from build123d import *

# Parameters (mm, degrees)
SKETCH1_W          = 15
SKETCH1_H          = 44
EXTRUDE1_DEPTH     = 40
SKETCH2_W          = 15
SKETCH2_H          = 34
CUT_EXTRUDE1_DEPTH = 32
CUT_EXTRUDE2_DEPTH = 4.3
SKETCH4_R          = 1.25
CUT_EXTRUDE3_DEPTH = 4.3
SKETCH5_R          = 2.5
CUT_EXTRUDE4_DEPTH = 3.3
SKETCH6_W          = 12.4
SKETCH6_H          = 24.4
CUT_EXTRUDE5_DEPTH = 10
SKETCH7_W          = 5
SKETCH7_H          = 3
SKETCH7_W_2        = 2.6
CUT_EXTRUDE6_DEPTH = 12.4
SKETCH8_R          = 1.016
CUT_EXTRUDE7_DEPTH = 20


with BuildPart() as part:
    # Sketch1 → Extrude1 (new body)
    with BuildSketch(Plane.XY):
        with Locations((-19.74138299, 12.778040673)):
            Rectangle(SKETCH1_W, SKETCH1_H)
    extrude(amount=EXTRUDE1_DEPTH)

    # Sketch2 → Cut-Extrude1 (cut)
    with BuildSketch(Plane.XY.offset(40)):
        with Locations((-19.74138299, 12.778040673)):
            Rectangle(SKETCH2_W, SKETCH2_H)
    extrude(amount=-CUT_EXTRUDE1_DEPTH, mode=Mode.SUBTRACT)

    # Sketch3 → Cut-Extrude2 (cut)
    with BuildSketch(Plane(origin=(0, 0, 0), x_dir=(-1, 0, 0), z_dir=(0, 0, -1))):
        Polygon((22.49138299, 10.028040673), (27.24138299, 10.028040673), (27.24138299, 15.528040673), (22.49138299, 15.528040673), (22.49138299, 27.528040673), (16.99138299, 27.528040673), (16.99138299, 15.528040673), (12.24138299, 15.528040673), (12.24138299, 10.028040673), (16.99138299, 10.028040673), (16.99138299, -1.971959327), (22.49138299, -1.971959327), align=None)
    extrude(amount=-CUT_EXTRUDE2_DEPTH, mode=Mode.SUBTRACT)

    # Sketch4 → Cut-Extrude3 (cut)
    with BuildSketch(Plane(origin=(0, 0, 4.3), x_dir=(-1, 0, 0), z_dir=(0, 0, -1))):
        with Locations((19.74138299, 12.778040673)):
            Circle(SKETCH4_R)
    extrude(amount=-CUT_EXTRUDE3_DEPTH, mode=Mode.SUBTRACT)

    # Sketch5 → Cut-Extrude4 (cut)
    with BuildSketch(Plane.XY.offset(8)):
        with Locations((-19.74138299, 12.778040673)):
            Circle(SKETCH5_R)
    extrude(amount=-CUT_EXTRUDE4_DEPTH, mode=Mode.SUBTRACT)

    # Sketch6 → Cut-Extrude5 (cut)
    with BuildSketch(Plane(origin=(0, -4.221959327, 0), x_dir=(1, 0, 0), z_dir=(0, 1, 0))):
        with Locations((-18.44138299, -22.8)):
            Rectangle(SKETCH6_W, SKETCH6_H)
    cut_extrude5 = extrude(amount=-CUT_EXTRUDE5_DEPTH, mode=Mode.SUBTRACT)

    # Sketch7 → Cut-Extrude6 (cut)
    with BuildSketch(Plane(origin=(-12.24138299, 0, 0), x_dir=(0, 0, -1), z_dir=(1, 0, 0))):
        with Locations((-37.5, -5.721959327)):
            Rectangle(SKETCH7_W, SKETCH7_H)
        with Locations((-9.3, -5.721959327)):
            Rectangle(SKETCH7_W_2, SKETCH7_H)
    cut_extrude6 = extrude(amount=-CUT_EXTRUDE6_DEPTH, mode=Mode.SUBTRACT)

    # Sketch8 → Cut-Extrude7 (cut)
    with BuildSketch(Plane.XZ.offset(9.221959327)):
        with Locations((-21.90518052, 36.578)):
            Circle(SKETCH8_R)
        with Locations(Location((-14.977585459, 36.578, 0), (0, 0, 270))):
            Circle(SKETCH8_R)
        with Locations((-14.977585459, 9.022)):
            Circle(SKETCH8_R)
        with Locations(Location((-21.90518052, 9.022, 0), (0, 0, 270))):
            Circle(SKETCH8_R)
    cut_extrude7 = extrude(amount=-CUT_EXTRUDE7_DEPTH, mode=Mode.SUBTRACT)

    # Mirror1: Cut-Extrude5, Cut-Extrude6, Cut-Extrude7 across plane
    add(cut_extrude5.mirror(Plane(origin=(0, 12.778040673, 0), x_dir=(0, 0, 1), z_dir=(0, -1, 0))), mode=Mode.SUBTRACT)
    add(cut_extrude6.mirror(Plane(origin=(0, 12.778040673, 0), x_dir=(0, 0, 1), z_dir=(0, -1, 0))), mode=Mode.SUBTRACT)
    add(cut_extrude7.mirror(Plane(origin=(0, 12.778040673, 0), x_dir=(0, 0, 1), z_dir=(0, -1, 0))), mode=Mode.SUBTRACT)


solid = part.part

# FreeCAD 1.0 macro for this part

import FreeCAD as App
import Part
import Sketcher

doc = App.newDocument("Part")
body = doc.addObject("PartDesign::Body", "Body")

# Sketch on XY plane
sketch1 = doc.addObject("Sketcher::SketchObject", "Sketch")
body.addObject(sketch1)
sketch1.AttachmentSupport = (doc.XY_Plane, [""])
sketch1.MapMode = "FlatFace"
sketch1.addGeometry(Part.LineSegment(App.Vector(-27, 35, 0), App.Vector(-27, -9, 0)), False)
sketch1.addGeometry(Part.LineSegment(App.Vector(-27, -9, 0), App.Vector(-12, -9, 0)), False)
sketch1.addGeometry(Part.LineSegment(App.Vector(-12, -9, 0), App.Vector(-12, 35, 0)), False)
sketch1.addGeometry(Part.LineSegment(App.Vector(-12, 35, 0), App.Vector(-27, 35, 0)), False)
sketch1.addConstraint(Sketcher.Constraint("Coincident", 0, 2, 1, 1))
sketch1.addConstraint(Sketcher.Constraint("Coincident", 1, 2, 2, 1))
sketch1.addConstraint(Sketcher.Constraint("Coincident", 2, 2, 3, 1))
sketch1.addConstraint(Sketcher.Constraint("Coincident", 3, 2, 0, 1))
sketch1.addConstraint(Sketcher.Constraint("Vertical", 0))
sketch1.addConstraint(Sketcher.Constraint("Horizontal", 1))
sketch1.addConstraint(Sketcher.Constraint("Vertical", 2))
sketch1.addConstraint(Sketcher.Constraint("Horizontal", 3))
sketch1.addConstraint(Sketcher.Constraint("DistanceX", 1, 1, 1, 2, 15.0))
sketch1.addConstraint(Sketcher.Constraint("DistanceY", 0, 2, 0, 1, 44.0))
sketch1.addConstraint(Sketcher.Constraint("DistanceY", 0, 2, -1, 1, 9.221959))
sketch1.addConstraint(Sketcher.Constraint("DistanceX", 0, 2, -1, 1, 27.241383))
pad1 = doc.addObject("PartDesign::Pad", "Pad")
body.addObject(pad1)
pad1.Profile = sketch1
pad1.Length = 40

# Sketch on XY plane
sketch2 = doc.addObject("Sketcher::SketchObject", "Sketch001")
body.addObject(sketch2)
sketch2.AttachmentSupport = (doc.XY_Plane, [""])
sketch2.MapMode = "FlatFace"
sketch2.AttachmentOffset = App.Placement(App.Vector(0, 0, 40), App.Rotation())
sketch2.addGeometry(Part.LineSegment(App.Vector(-27, 30, 0), App.Vector(-27, -4, 0)), False)
sketch2.addGeometry(Part.LineSegment(App.Vector(-27, -4, 0), App.Vector(-12, -4, 0)), False)
sketch2.addGeometry(Part.LineSegment(App.Vector(-12, -4, 0), App.Vector(-12, 30, 0)), False)
sketch2.addGeometry(Part.LineSegment(App.Vector(-12, 30, 0), App.Vector(-27, 30, 0)), False)
sketch2.addConstraint(Sketcher.Constraint("Coincident", 0, 2, 1, 1))
sketch2.addConstraint(Sketcher.Constraint("Coincident", 1, 2, 2, 1))
sketch2.addConstraint(Sketcher.Constraint("Coincident", 2, 2, 3, 1))
sketch2.addConstraint(Sketcher.Constraint("Coincident", 3, 2, 0, 1))
sketch2.addConstraint(Sketcher.Constraint("Vertical", 0))
sketch2.addConstraint(Sketcher.Constraint("Horizontal", 1))
sketch2.addConstraint(Sketcher.Constraint("Vertical", 2))
sketch2.addConstraint(Sketcher.Constraint("Horizontal", 3))
sketch2.addConstraint(Sketcher.Constraint("DistanceX", 1, 1, 1, 2, 15.0))
sketch2.addConstraint(Sketcher.Constraint("DistanceY", 0, 2, 0, 1, 34.0))
sketch2.addConstraint(Sketcher.Constraint("DistanceY", 0, 2, -1, 1, 4.221959))
sketch2.addConstraint(Sketcher.Constraint("DistanceX", 0, 2, -1, 1, 27.241383))
pocket1 = doc.addObject("PartDesign::Pocket", "Pocket")
body.addObject(pocket1)
pocket1.Profile = sketch2
pocket1.Length = 32

# Sketch on XY plane
sketch3 = doc.addObject("Sketcher::SketchObject", "Sketch002")
body.addObject(sketch3)
sketch3.AttachmentSupport = (doc.XY_Plane, [""])
sketch3.MapMode = "FlatFace"
sketch3.addGeometry(Part.LineSegment(App.Vector(-22.5, 10, 0), App.Vector(-27.2, 10, 0)), False)
sketch3.addGeometry(Part.LineSegment(App.Vector(-27.2, 10, 0), App.Vector(-27.2, 15.5, 0)), False)
sketch3.addGeometry(Part.LineSegment(App.Vector(-27.2, 15.5, 0), App.Vector(-22.5, 15.5, 0)), False)
sketch3.addGeometry(Part.LineSegment(App.Vector(-22.5, 15.5, 0), App.Vector(-22.5, 27.5, 0)), False)
sketch3.addGeometry(Part.LineSegment(App.Vector(-22.5, 27.5, 0), App.Vector(-17, 27.5, 0)), False)
sketch3.addGeometry(Part.LineSegment(App.Vector(-17, 27.5, 0), App.Vector(-17, 15.5, 0)), False)
sketch3.addGeometry(Part.LineSegment(App.Vector(-17, 15.5, 0), App.Vector(-12.2, 15.5, 0)), False)
sketch3.addGeometry(Part.LineSegment(App.Vector(-12.2, 15.5, 0), App.Vector(-12.2, 10, 0)), False)
sketch3.addGeometry(Part.LineSegment(App.Vector(-12.2, 10, 0), App.Vector(-17, 10, 0)), False)
sketch3.addGeometry(Part.LineSegment(App.Vector(-17, 10, 0), App.Vector(-17, -2, 0)), False)
sketch3.addGeometry(Part.LineSegment(App.Vector(-17, -2, 0), App.Vector(-22.5, -2, 0)), False)
sketch3.addGeometry(Part.LineSegment(App.Vector(-22.5, -2, 0), App.Vector(-22.5, 10, 0)), False)
sketch3.addConstraint(Sketcher.Constraint("Coincident", 0, 2, 1, 1))
sketch3.addConstraint(Sketcher.Constraint("Coincident", 1, 2, 2, 1))
sketch3.addConstraint(Sketcher.Constraint("Coincident", 2, 2, 3, 1))
sketch3.addConstraint(Sketcher.Constraint("Coincident", 3, 2, 4, 1))
sketch3.addConstraint(Sketcher.Constraint("Coincident", 4, 2, 5, 1))
sketch3.addConstraint(Sketcher.Constraint("Coincident", 5, 2, 6, 1))
sketch3.addConstraint(Sketcher.Constraint("Coincident", 6, 2, 7, 1))
sketch3.addConstraint(Sketcher.Constraint("Coincident", 7, 2, 8, 1))
sketch3.addConstraint(Sketcher.Constraint("Coincident", 8, 2, 9, 1))
sketch3.addConstraint(Sketcher.Constraint("Coincident", 9, 2, 10, 1))
sketch3.addConstraint(Sketcher.Constraint("Coincident", 10, 2, 11, 1))
sketch3.addConstraint(Sketcher.Constraint("Coincident", 11, 2, 0, 1))
sketch3.addConstraint(Sketcher.Constraint("Horizontal", 0))
sketch3.addConstraint(Sketcher.Constraint("Vertical", 1))
sketch3.addConstraint(Sketcher.Constraint("Horizontal", 2))
sketch3.addConstraint(Sketcher.Constraint("Vertical", 3))
sketch3.addConstraint(Sketcher.Constraint("Horizontal", 4))
sketch3.addConstraint(Sketcher.Constraint("Vertical", 5))
sketch3.addConstraint(Sketcher.Constraint("Horizontal", 6))
sketch3.addConstraint(Sketcher.Constraint("Vertical", 7))
sketch3.addConstraint(Sketcher.Constraint("Horizontal", 8))
sketch3.addConstraint(Sketcher.Constraint("Vertical", 9))
sketch3.addConstraint(Sketcher.Constraint("Horizontal", 10))
sketch3.addConstraint(Sketcher.Constraint("Vertical", 11))
sketch3.addConstraint(Sketcher.Constraint("Horizontal", 2, 2, 5, 2))
sketch3.addConstraint(Sketcher.Constraint("Horizontal", 0, 2, 7, 2))
sketch3.addConstraint(Sketcher.Constraint("Vertical", 5, 2, 8, 2))
sketch3.addConstraint(Sketcher.Constraint("Vertical", 3, 2, 10, 2))
sketch3.addConstraint(Sketcher.Constraint("Equal", 2, 6))
sketch3.addConstraint(Sketcher.Constraint("Equal", 10, 1))
sketch3.addConstraint(Sketcher.Constraint("Equal", 5, 9))
sketch3.addConstraint(Sketcher.Constraint("DistanceY", 3, 1, 3, 2, 12.0))
sketch3.addConstraint(Sketcher.Constraint("DistanceX", 4, 1, 4, 2, 5.5))
sketch3.addConstraint(Sketcher.Constraint("DistanceX", 1, 2, 6, 2, 15.0))
sketch3.addConstraint(Sketcher.Constraint("DistanceY", -1, 1, 0, 2, 10.028041))
sketch3.addConstraint(Sketcher.Constraint("DistanceX", 0, 2, -1, 1, 27.241383))
pocket2 = doc.addObject("PartDesign::Pocket", "Pocket001")
body.addObject(pocket2)
pocket2.Profile = sketch3
pocket2.Length = 4.3
pocket2.Reversed = True

# Sketch on XY plane
sketch4 = doc.addObject("Sketcher::SketchObject", "Sketch003")
body.addObject(sketch4)
sketch4.AttachmentSupport = (doc.XY_Plane, [""])
sketch4.MapMode = "FlatFace"
sketch4.AttachmentOffset = App.Placement(App.Vector(0, 0, 4.3), App.Rotation())
sketch4.addGeometry(Part.Circle(App.Vector(-19.7, 12.8, 0), App.Vector(0, 0, 1), 1.2), False)
sketch4.addConstraint(Sketcher.Constraint("Diameter", 0, 2.5))
sketch4.addConstraint(Sketcher.Constraint("DistanceY", -1, 1, 0, 3, 12.778041))
sketch4.addConstraint(Sketcher.Constraint("DistanceX", 0, 3, -1, 1, 19.741383))
pocket3 = doc.addObject("PartDesign::Pocket", "Pocket002")
body.addObject(pocket3)
pocket3.Profile = sketch4
pocket3.Length = 4.3
pocket3.Reversed = True

# Sketch on XY plane
sketch5 = doc.addObject("Sketcher::SketchObject", "Sketch004")
body.addObject(sketch5)
sketch5.AttachmentSupport = (doc.XY_Plane, [""])
sketch5.MapMode = "FlatFace"
sketch5.AttachmentOffset = App.Placement(App.Vector(0, 0, 8), App.Rotation())
sketch5.addGeometry(Part.Circle(App.Vector(-19.7, 12.8, 0), App.Vector(0, 0, 1), 2.5), False)
sketch5.addConstraint(Sketcher.Constraint("Diameter", 0, 5.0))
sketch5.addConstraint(Sketcher.Constraint("DistanceY", -1, 1, 0, 3, 12.778041))
sketch5.addConstraint(Sketcher.Constraint("DistanceX", 0, 3, -1, 1, 19.741383))
pocket4 = doc.addObject("PartDesign::Pocket", "Pocket003")
body.addObject(pocket4)
pocket4.Profile = sketch5
pocket4.Length = 3.3

# Sketch on XZ plane
sketch6 = doc.addObject("Sketcher::SketchObject", "Sketch005")
body.addObject(sketch6)
sketch6.AttachmentSupport = (doc.XZ_Plane, [""])
sketch6.MapMode = "FlatFace"
sketch6.AttachmentOffset = App.Placement(App.Vector(0, 0, 4.221959), App.Rotation())
sketch6.addGeometry(Part.LineSegment(App.Vector(-25, 11, 0), App.Vector(-25, 35, 0)), False)
sketch6.addGeometry(Part.LineSegment(App.Vector(-25, 35, 0), App.Vector(-12, 35, 0)), False)
sketch6.addGeometry(Part.LineSegment(App.Vector(-12, 35, 0), App.Vector(-12, 11, 0)), False)
sketch6.addGeometry(Part.LineSegment(App.Vector(-12, 11, 0), App.Vector(-25, 11, 0)), False)
sketch6.addConstraint(Sketcher.Constraint("Coincident", 0, 2, 1, 1))
sketch6.addConstraint(Sketcher.Constraint("Coincident", 1, 2, 2, 1))
sketch6.addConstraint(Sketcher.Constraint("Coincident", 2, 2, 3, 1))
sketch6.addConstraint(Sketcher.Constraint("Coincident", 3, 2, 0, 1))
sketch6.addConstraint(Sketcher.Constraint("Vertical", 0))
sketch6.addConstraint(Sketcher.Constraint("Horizontal", 1))
sketch6.addConstraint(Sketcher.Constraint("Vertical", 2))
sketch6.addConstraint(Sketcher.Constraint("Horizontal", 3))
sketch6.addConstraint(Sketcher.Constraint("DistanceX", 1, 1, 1, 2, 12.4))
sketch6.addConstraint(Sketcher.Constraint("DistanceY", 0, 1, 0, 2, 24.4))
sketch6.addConstraint(Sketcher.Constraint("DistanceY", -1, 1, 0, 2, 35.0))
sketch6.addConstraint(Sketcher.Constraint("DistanceX", 0, 2, -1, 1, 24.641383))
pocket5 = doc.addObject("PartDesign::Pocket", "Pocket004")
body.addObject(pocket5)
pocket5.Profile = sketch6
pocket5.Length = 10
pocket5.Reversed = True

# Sketch on YZ plane
sketch7 = doc.addObject("Sketcher::SketchObject", "Sketch006")
body.addObject(sketch7)
sketch7.AttachmentSupport = (doc.YZ_Plane, [""])
sketch7.MapMode = "FlatFace"
sketch7.AttachmentOffset = App.Placement(App.Vector(0, 0, -12.241383), App.Rotation())
sketch7.addGeometry(Part.LineSegment(App.Vector(-4.2, 40, 0), App.Vector(-7.2, 40, 0)), False)
sketch7.addGeometry(Part.LineSegment(App.Vector(-7.2, 40, 0), App.Vector(-7.2, 35, 0)), False)
sketch7.addGeometry(Part.LineSegment(App.Vector(-7.2, 35, 0), App.Vector(-4.2, 35, 0)), False)
sketch7.addGeometry(Part.LineSegment(App.Vector(-4.2, 35, 0), App.Vector(-4.2, 40, 0)), False)
sketch7.addGeometry(Part.LineSegment(App.Vector(-4.2, 10.6, 0), App.Vector(-7.2, 10.6, 0)), False)
sketch7.addGeometry(Part.LineSegment(App.Vector(-7.2, 10.6, 0), App.Vector(-7.2, 8, 0)), False)
sketch7.addGeometry(Part.LineSegment(App.Vector(-7.2, 8, 0), App.Vector(-4.2, 8, 0)), False)
sketch7.addGeometry(Part.LineSegment(App.Vector(-4.2, 8, 0), App.Vector(-4.2, 10.6, 0)), False)
sketch7.addConstraint(Sketcher.Constraint("Coincident", 0, 2, 1, 1))
sketch7.addConstraint(Sketcher.Constraint("Coincident", 1, 2, 2, 1))
sketch7.addConstraint(Sketcher.Constraint("Coincident", 2, 2, 3, 1))
sketch7.addConstraint(Sketcher.Constraint("Coincident", 3, 2, 0, 1))
sketch7.addConstraint(Sketcher.Constraint("Coincident", 4, 2, 5, 1))
sketch7.addConstraint(Sketcher.Constraint("Coincident", 5, 2, 6, 1))
sketch7.addConstraint(Sketcher.Constraint("Coincident", 6, 2, 7, 1))
sketch7.addConstraint(Sketcher.Constraint("Coincident", 7, 2, 4, 1))
sketch7.addConstraint(Sketcher.Constraint("Horizontal", 0))
sketch7.addConstraint(Sketcher.Constraint("Vertical", 1))
sketch7.addConstraint(Sketcher.Constraint("Horizontal", 2))
sketch7.addConstraint(Sketcher.Constraint("Vertical", 3))
sketch7.addConstraint(Sketcher.Constraint("Horizontal", 4))
sketch7.addConstraint(Sketcher.Constraint("Vertical", 5))
sketch7.addConstraint(Sketcher.Constraint("Horizontal", 6))
sketch7.addConstraint(Sketcher.Constraint("Vertical", 7))
sketch7.addConstraint(Sketcher.Constraint("Vertical", 1, 2, 4, 2))
sketch7.addConstraint(Sketcher.Constraint("Vertical", 3, 2, 6, 2))
sketch7.addConstraint(Sketcher.Constraint("DistanceX", 0, 2, 0, 1, 3.0))
sketch7.addConstraint(Sketcher.Constraint("DistanceY", 1, 2, 1, 1, 5.0))
sketch7.addConstraint(Sketcher.Constraint("DistanceY", 5, 2, 5, 1, 2.6))
sketch7.addConstraint(Sketcher.Constraint("DistanceY", -1, 1, 0, 2, 40.0))
sketch7.addConstraint(Sketcher.Constraint("DistanceY", -1, 1, 5, 2, 8.0))
sketch7.addConstraint(Sketcher.Constraint("DistanceX", 0, 2, -1, 1, 7.221959))
pocket6 = doc.addObject("PartDesign::Pocket", "Pocket005")
body.addObject(pocket6)
pocket6.Profile = sketch7
pocket6.Length = 12.4

# Sketch on XZ plane
sketch8 = doc.addObject("Sketcher::SketchObject", "Sketch007")
body.addObject(sketch8)
sketch8.AttachmentSupport = (doc.XZ_Plane, [""])
sketch8.MapMode = "FlatFace"
sketch8.AttachmentOffset = App.Placement(App.Vector(0, 0, 9.221959), App.Rotation())
sketch8.addGeometry(Part.Circle(App.Vector(-21.9, 36.6, 0), App.Vector(0, 0, 1), 1), False)
sketch8.addGeometry(Part.Circle(App.Vector(-15, 36.6, 0), App.Vector(0, 0, 1), 1), False)
sketch8.addGeometry(Part.Circle(App.Vector(-15, 9, 0), App.Vector(0, 0, 1), 1), False)
sketch8.addGeometry(Part.Circle(App.Vector(-21.9, 9, 0), App.Vector(0, 0, 1), 1), False)
sketch8.addConstraint(Sketcher.Constraint("Equal", 0, 1))
sketch8.addConstraint(Sketcher.Constraint("Equal", 1, 2))
sketch8.addConstraint(Sketcher.Constraint("Equal", 2, 3))
sketch8.addConstraint(Sketcher.Constraint("Horizontal", 0, 3, 1, 3))
sketch8.addConstraint(Sketcher.Constraint("Horizontal", 2, 3, 3, 3))
sketch8.addConstraint(Sketcher.Constraint("Vertical", 1, 3, 2, 3))
sketch8.addConstraint(Sketcher.Constraint("Vertical", 0, 3, 3, 3))
sketch8.addConstraint(Sketcher.Constraint("Diameter", 0, 2.032))
sketch8.addConstraint(Sketcher.Constraint("DistanceY", -1, 1, 0, 3, 36.578))
sketch8.addConstraint(Sketcher.Constraint("DistanceY", -1, 1, 2, 3, 9.022))
sketch8.addConstraint(Sketcher.Constraint("DistanceX", 0, 3, -1, 1, 21.905181))
sketch8.addConstraint(Sketcher.Constraint("DistanceX", 1, 3, -1, 1, 14.977585))
pocket7 = doc.addObject("PartDesign::Pocket", "Pocket006")
body.addObject(pocket7)
pocket7.Profile = sketch8
pocket7.Length = 20
doc.recompute()

datumplane = doc.addObject("PartDesign::Plane", "DatumPlane")
body.addObject(datumplane)
datumplane.AttachmentSupport = (doc.XZ_Plane, [""])
datumplane.MapMode = "FlatFace"
datumplane.AttachmentOffset = App.Placement(App.Vector(0, 0, -12.778041), App.Rotation())
mirrored = doc.addObject("PartDesign::Mirrored", "Mirrored")
body.addObject(mirrored)
mirrored.Originals = [pocket5, pocket6, pocket7]
mirrored.MirrorPlane = (datumplane, [""])
body.Tip = mirrored

doc.recompute()
